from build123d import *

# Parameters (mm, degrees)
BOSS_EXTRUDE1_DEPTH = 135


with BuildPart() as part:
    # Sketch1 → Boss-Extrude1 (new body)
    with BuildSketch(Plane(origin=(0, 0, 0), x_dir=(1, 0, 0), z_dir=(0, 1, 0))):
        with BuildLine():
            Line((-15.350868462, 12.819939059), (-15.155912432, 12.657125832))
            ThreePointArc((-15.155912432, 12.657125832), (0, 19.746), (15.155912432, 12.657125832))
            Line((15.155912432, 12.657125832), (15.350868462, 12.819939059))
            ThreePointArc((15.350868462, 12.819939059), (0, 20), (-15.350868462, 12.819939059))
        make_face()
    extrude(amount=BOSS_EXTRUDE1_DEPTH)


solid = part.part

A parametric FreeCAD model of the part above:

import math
import FreeCAD as App
import Part
import Sketcher

V = App.Vector

doc = App.newDocument("Part")
params = doc.addObject("Spreadsheet::Sheet", "Params")
for row, (alias, value) in enumerate([
    ("sketch1_radius", "20 mm"),
    ("pad1_length", "135 mm"),
], start=1):
    params.set(f"A{row}", alias)
    params.set(f"B{row}", "=" + value)
    params.setAlias(f"B{row}", alias)

body = doc.addObject("PartDesign::Body", "Body")

# Sketch on XZ plane
sketch1 = body.newObject("Sketcher::SketchObject", "Sketch")
sketch1.AttachmentSupport = (doc.getObject("XZ_Plane"), [""])
sketch1.MapMode = "FlatFace"
sketch1.addGeometry([
    Part.LineSegment(V(-15.35, -12.82, 0), V(-15.16, -12.66, 0)),
    Part.ArcOfCircle(Part.Circle(V(0, 0, 0), V(0, 0, 1), 19.75), math.radians(-140), math.radians(-40)),
    Part.LineSegment(V(15.16, -12.66, 0), V(15.35, -12.82, 0)),
    Part.ArcOfCircle(Part.Circle(V(0, 0, 0), V(0, 0, 1), 20), math.radians(-140), math.radians(-40)),
], False)
sketch1.addConstraint([
    Sketcher.Constraint("Coincident", 0, 2, 1, 1),
    Sketcher.Constraint("Coincident", 1, 2, 2, 1),
    Sketcher.Constraint("Coincident", 2, 2, 3, 2),
    Sketcher.Constraint("Coincident", 3, 1, 0, 1),
    Sketcher.Constraint("Coincident", 1, 3, -1, 1),
    Sketcher.Constraint("Coincident", 3, 3, -1, 1),
    Sketcher.Constraint("Horizontal", 0, 2, 1, 2),
    Sketcher.Constraint("Horizontal", 2, 2, 3, 1),
    Sketcher.Constraint("Radius", 3, 20.0),
    Sketcher.Constraint("Radius", 1, 19.746),
    Sketcher.Constraint("DistanceX", -1, 1, 2, 2, 15.350868),
    Sketcher.Constraint("DistanceX", 0, 2, 2, 2, 30.506781),
])
sketch1.setExpression("Constraints[8]", "Params.sketch1_radius")
pad1 = body.newObject("PartDesign::Pad", "Pad")
pad1.Profile = sketch1
pad1.setExpression("Length", "Params.pad1_length")
pad1.Reversed = True

doc.recompute()
